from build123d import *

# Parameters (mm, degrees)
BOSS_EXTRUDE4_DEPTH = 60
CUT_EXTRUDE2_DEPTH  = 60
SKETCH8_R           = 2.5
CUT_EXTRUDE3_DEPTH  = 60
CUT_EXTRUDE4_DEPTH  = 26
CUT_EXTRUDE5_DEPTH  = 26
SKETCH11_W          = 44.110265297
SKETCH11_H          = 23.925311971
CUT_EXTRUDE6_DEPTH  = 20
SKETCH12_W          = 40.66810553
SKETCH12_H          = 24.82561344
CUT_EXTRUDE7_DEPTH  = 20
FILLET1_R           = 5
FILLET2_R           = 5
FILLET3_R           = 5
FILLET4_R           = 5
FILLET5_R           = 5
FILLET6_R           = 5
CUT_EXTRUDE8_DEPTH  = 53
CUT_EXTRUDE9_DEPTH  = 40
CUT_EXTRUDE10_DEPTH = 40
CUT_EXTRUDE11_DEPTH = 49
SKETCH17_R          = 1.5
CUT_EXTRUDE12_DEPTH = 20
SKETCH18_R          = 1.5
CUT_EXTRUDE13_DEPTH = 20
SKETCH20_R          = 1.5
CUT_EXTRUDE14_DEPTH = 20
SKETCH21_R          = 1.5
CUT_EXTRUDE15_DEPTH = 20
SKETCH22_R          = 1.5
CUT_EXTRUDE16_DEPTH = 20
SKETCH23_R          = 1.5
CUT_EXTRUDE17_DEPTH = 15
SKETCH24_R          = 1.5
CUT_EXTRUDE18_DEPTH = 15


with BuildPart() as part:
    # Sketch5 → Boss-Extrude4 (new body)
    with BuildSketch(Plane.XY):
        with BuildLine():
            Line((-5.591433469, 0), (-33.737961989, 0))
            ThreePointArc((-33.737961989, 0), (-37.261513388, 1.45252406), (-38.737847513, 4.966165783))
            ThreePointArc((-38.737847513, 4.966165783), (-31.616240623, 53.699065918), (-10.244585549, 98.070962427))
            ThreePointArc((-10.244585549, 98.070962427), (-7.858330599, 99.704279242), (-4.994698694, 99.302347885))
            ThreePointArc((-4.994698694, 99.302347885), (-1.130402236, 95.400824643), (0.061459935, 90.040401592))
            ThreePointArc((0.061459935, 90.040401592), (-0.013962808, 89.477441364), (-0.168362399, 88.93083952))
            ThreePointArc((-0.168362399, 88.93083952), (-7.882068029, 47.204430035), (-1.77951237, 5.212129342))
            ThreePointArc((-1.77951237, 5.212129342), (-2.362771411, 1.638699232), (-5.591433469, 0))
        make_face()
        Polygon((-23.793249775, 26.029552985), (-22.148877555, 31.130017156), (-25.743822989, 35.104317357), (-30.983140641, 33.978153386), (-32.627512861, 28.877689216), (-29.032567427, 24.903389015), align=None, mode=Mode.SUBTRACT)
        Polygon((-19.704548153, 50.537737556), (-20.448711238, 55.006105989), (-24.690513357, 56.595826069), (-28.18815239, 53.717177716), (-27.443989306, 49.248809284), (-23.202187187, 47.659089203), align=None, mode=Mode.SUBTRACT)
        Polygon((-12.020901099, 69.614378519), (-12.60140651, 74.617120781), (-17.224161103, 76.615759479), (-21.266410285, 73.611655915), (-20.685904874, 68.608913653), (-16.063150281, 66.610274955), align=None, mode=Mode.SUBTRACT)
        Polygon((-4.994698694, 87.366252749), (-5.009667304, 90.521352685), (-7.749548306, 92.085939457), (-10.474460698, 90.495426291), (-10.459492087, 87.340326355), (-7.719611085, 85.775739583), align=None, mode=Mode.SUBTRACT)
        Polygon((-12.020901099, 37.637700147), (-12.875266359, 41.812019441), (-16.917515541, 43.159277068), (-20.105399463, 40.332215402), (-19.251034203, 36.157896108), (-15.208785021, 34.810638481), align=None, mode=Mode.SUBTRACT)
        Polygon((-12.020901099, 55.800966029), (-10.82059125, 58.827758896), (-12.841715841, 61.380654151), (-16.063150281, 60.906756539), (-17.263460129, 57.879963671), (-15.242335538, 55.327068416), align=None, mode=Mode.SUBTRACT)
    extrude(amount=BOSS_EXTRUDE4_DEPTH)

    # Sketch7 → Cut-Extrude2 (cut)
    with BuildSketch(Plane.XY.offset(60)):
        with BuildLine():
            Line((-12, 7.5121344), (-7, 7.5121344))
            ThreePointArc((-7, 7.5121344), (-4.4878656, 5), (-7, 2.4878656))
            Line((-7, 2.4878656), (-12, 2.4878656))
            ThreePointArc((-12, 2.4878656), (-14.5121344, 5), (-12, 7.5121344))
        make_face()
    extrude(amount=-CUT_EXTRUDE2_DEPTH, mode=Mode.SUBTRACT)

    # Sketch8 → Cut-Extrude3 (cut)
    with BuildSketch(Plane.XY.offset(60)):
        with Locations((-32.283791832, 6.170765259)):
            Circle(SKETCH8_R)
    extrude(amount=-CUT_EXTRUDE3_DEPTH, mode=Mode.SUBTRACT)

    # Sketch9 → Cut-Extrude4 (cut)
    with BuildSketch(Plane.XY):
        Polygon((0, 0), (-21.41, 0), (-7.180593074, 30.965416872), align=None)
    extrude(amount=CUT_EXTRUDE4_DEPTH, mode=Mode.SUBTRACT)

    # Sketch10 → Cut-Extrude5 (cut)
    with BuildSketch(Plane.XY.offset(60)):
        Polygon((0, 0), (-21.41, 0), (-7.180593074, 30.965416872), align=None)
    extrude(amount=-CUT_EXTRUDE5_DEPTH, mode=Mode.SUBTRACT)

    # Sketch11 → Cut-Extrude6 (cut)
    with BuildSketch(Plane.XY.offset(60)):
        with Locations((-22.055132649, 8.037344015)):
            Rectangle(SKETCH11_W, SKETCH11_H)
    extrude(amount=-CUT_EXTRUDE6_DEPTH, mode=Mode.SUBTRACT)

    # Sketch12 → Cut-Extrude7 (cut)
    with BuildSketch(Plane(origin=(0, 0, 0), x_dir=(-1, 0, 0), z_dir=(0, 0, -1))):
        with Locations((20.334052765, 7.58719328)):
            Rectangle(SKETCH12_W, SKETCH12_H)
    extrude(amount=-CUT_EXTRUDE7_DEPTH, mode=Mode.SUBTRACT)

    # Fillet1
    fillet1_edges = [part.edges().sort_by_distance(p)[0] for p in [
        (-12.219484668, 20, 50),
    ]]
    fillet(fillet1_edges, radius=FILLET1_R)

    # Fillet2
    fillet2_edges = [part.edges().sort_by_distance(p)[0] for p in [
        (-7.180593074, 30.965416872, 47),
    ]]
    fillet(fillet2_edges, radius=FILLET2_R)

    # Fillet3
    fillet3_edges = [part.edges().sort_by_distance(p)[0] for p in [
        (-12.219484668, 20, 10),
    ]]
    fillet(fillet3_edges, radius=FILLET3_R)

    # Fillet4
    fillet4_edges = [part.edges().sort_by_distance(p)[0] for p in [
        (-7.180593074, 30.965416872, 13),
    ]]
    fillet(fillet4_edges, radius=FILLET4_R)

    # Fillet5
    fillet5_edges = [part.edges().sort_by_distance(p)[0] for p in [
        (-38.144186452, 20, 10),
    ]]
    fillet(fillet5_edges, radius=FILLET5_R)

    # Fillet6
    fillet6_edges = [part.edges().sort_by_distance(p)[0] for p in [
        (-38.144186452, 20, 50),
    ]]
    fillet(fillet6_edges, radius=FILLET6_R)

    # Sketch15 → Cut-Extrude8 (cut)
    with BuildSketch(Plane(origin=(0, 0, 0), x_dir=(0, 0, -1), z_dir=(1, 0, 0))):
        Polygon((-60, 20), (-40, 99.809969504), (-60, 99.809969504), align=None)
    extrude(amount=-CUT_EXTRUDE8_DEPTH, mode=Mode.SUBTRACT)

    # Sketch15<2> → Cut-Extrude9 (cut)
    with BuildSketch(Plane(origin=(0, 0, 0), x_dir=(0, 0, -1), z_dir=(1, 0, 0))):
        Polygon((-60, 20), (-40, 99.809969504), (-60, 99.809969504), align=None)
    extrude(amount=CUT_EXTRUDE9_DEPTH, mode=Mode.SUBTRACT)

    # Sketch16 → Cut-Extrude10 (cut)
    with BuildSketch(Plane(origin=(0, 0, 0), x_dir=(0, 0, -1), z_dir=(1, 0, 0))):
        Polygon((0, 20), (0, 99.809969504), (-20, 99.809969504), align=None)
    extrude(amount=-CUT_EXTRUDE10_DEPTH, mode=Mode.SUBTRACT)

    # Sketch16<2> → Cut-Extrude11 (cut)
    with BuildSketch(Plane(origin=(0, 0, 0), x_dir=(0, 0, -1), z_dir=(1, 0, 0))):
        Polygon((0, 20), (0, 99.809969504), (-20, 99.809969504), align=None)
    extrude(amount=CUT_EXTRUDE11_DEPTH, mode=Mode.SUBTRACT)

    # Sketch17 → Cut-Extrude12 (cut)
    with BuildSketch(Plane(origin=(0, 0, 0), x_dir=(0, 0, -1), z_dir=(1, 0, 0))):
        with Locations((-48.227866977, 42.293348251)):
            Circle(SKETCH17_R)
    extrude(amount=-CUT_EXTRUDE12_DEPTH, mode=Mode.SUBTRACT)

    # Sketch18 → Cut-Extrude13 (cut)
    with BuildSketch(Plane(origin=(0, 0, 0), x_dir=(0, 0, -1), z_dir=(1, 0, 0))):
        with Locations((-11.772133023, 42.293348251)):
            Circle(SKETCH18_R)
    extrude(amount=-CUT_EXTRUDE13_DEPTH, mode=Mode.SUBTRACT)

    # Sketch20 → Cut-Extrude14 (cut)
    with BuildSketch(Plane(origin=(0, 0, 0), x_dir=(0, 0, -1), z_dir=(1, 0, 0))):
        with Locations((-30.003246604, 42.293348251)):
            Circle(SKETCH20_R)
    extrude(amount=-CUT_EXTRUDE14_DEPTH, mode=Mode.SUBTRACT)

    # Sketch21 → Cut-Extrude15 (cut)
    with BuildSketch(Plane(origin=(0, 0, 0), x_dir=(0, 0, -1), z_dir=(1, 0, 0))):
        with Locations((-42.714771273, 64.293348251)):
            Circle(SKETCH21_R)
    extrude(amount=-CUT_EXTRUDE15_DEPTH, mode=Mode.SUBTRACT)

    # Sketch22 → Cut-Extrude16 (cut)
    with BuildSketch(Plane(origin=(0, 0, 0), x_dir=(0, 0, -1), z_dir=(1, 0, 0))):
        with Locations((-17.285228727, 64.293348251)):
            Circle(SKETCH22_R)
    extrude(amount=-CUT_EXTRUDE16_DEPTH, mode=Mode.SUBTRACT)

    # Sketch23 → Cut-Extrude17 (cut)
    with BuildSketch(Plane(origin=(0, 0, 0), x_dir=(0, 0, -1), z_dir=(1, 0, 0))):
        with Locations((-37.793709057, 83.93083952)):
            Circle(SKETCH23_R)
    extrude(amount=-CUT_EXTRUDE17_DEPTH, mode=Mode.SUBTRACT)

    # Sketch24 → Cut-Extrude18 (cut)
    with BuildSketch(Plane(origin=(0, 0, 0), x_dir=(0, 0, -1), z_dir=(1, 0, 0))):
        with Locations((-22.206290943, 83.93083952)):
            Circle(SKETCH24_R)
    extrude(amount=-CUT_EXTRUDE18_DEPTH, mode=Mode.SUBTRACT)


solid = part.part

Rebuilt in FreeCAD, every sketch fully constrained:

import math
import FreeCAD as App
import Part
import Sketcher
from FreeCAD import Vector
Q = App.Units.Quantity


def edges_at(feature, points):
    """Names of the edges that pass closest to the given points."""
    edges = feature.Shape.Edges
    near = lambda p: min(range(len(edges)), key=lambda i: edges[i].distToShape(Part.Vertex(*p))[0])
    return sorted({f"Edge{near(p) + 1}" for p in points})

doc = App.newDocument("Part")
body = doc.addObject("PartDesign::Body", "Body")

sketch1 = body.newObject("Sketcher::SketchObject", "Sketch")
sketch1.AttachmentSupport = (doc.getObject("XY_Plane"), [""])
sketch1.MapMode = "FlatFace"
sketch1.addGeometry(Part.LineSegment(Vector(-33.737962, 0, 0), Vector(-5.591433, 0, 0)), False)
sketch1.addGeometry(Part.ArcOfCircle(Part.Circle(Vector(-5.591433, 4, 0), Vector(0, 0, 1), 4), math.radians(-90), math.radians(17.639824)), False)
sketch1.addGeometry(Part.ArcOfCircle(Part.Circle(Vector(122.393977, 44.697293, 0), Vector(0, 0, 1), 130.300167), math.radians(160.155157), math.radians(197.639824)), False)
sketch1.addGeometry(Part.ArcOfCircle(Part.Circle(Vector(-3.930824, 90.288736, 0), Vector(0, 0, 1), 4), math.radians(-19.844843), math.radians(-3.559422)), False)
sketch1.addGeometry(Part.ArcOfCircle(Part.Circle(Vector(-9.823371, 90.655275, 0), Vector(0, 0, 1), 9.903936), math.radians(-3.559422), math.radians(60.820267)), False)
sketch1.addGeometry(Part.ArcOfCircle(Part.Circle(Vector(-6.944902, 95.80997, 0), Vector(0, 0, 1), 4), math.radians(60.820267), math.radians(145.580469)), False)
sketch1.addGeometry(Part.ArcOfCircle(Part.Circle(Vector(124.02476, 6.06758, 0), Vector(0, 0, 1), 162.766334), math.radians(145.580469), math.radians(180.387715)), False)
sketch1.addGeometry(Part.ArcOfCircle(Part.Circle(Vector(-33.737962, 5, 0), Vector(0, 0, 1), 5), math.radians(-179.612285), math.radians(-90)), False)
sketch1.addGeometry(Part.LineSegment(Vector(-12.020901, 37.6377, 0), Vector(-15.208785, 34.810638, 0)), False)
sketch1.addGeometry(Part.LineSegment(Vector(-15.208785, 34.810638, 0), Vector(-19.251034, 36.157896, 0)), False)
sketch1.addGeometry(Part.LineSegment(Vector(-19.251034, 36.157896, 0), Vector(-20.105399, 40.332215, 0)), False)
sketch1.addGeometry(Part.LineSegment(Vector(-20.105399, 40.332215, 0), Vector(-16.917516, 43.159277, 0)), False)
sketch1.addGeometry(Part.LineSegment(Vector(-16.917516, 43.159277, 0), Vector(-12.875266, 41.812019, 0)), False)
sketch1.addGeometry(Part.LineSegment(Vector(-12.875266, 41.812019, 0), Vector(-12.020901, 37.6377, 0)), False)
sketch1.addGeometry(Part.LineSegment(Vector(-12.020901, 55.800966, 0), Vector(-15.242336, 55.327068, 0)), False)
sketch1.addGeometry(Part.LineSegment(Vector(-15.242336, 55.327068, 0), Vector(-17.26346, 57.879964, 0)), False)
sketch1.addGeometry(Part.LineSegment(Vector(-17.26346, 57.879964, 0), Vector(-16.06315, 60.906757, 0)), False)
sketch1.addGeometry(Part.LineSegment(Vector(-16.06315, 60.906757, 0), Vector(-12.841716, 61.380654, 0)), False)
sketch1.addGeometry(Part.LineSegment(Vector(-12.841716, 61.380654, 0), Vector(-10.820591, 58.827759, 0)), False)
sketch1.addGeometry(Part.LineSegment(Vector(-10.820591, 58.827759, 0), Vector(-12.020901, 55.800966, 0)), False)
sketch1.addGeometry(Part.LineSegment(Vector(-23.79325, 26.029553, 0), Vector(-29.032567, 24.903389, 0)), False)
sketch1.addGeometry(Part.LineSegment(Vector(-29.032567, 24.903389, 0), Vector(-32.627513, 28.877689, 0)), False)
sketch1.addGeometry(Part.LineSegment(Vector(-32.627513, 28.877689, 0), Vector(-30.983141, 33.978153, 0)), False)
sketch1.addGeometry(Part.LineSegment(Vector(-30.983141, 33.978153, 0), Vector(-25.743823, 35.104317, 0)), False)
sketch1.addGeometry(Part.LineSegment(Vector(-25.743823, 35.104317, 0), Vector(-22.148878, 31.130017, 0)), False)
sketch1.addGeometry(Part.LineSegment(Vector(-22.148878, 31.130017, 0), Vector(-23.79325, 26.029553, 0)), False)
sketch1.addGeometry(Part.LineSegment(Vector(-19.704548, 50.537738, 0), Vector(-23.202187, 47.659089, 0)), False)
sketch1.addGeometry(Part.LineSegment(Vector(-23.202187, 47.659089, 0), Vector(-27.443989, 49.248809, 0)), False)
sketch1.addGeometry(Part.LineSegment(Vector(-27.443989, 49.248809, 0), Vector(-28.188152, 53.717178, 0)), False)
sketch1.addGeometry(Part.LineSegment(Vector(-28.188152, 53.717178, 0), Vector(-24.690513, 56.595826, 0)), False)
sketch1.addGeometry(Part.LineSegment(Vector(-24.690513, 56.595826, 0), Vector(-20.448711, 55.006106, 0)), False)
sketch1.addGeometry(Part.LineSegment(Vector(-20.448711, 55.006106, 0), Vector(-19.704548, 50.537738, 0)), False)
sketch1.addGeometry(Part.LineSegment(Vector(-12.020901, 69.614379, 0), Vector(-16.06315, 66.610275, 0)), False)
sketch1.addGeometry(Part.LineSegment(Vector(-16.06315, 66.610275, 0), Vector(-20.685905, 68.608914, 0)), False)
sketch1.addGeometry(Part.LineSegment(Vector(-20.685905, 68.608914, 0), Vector(-21.26641, 73.611656, 0)), False)
sketch1.addGeometry(Part.LineSegment(Vector(-21.26641, 73.611656, 0), Vector(-17.224161, 76.615759, 0)), False)
sketch1.addGeometry(Part.LineSegment(Vector(-17.224161, 76.615759, 0), Vector(-12.601407, 74.617121, 0)), False)
sketch1.addGeometry(Part.LineSegment(Vector(-12.601407, 74.617121, 0), Vector(-12.020901, 69.614379, 0)), False)
sketch1.addGeometry(Part.LineSegment(Vector(-4.994699, 87.366253, 0), Vector(-7.719611, 85.77574, 0)), False)
sketch1.addGeometry(Part.LineSegment(Vector(-7.719611, 85.77574, 0), Vector(-10.459492, 87.340326, 0)), False)
sketch1.addGeometry(Part.LineSegment(Vector(-10.459492, 87.340326, 0), Vector(-10.474461, 90.495426, 0)), False)
sketch1.addGeometry(Part.LineSegment(Vector(-10.474461, 90.495426, 0), Vector(-7.749548, 92.085939, 0)), False)
sketch1.addGeometry(Part.LineSegment(Vector(-7.749548, 92.085939, 0), Vector(-5.009667, 90.521353, 0)), False)
sketch1.addGeometry(Part.LineSegment(Vector(-5.009667, 90.521353, 0), Vector(-4.994699, 87.366253, 0)), False)
sketch1.addConstraint(Sketcher.Constraint("Tangent", 0, 2, 1, 1))
sketch1.addConstraint(Sketcher.Constraint("Tangent", 1, 2, 2, 2))
sketch1.addConstraint(Sketcher.Constraint("Tangent", 2, 1, 3, 1))
sketch1.addConstraint(Sketcher.Constraint("Tangent", 3, 2, 4, 1))
sketch1.addConstraint(Sketcher.Constraint("Tangent", 4, 2, 5, 1))
sketch1.addConstraint(Sketcher.Constraint("Tangent", 5, 2, 6, 1))
sketch1.addConstraint(Sketcher.Constraint("Tangent", 6, 2, 7, 1))
sketch1.addConstraint(Sketcher.Constraint("Tangent", 7, 2, 0, 1))
sketch1.addConstraint(Sketcher.Constraint("Coincident", 8, 2, 9, 1))
sketch1.addConstraint(Sketcher.Constraint("Coincident", 9, 2, 10, 1))
sketch1.addConstraint(Sketcher.Constraint("Coincident", 10, 2, 11, 1))
sketch1.addConstraint(Sketcher.Constraint("Coincident", 11, 2, 12, 1))
sketch1.addConstraint(Sketcher.Constraint("Coincident", 12, 2, 13, 1))
sketch1.addConstraint(Sketcher.Constraint("Coincident", 13, 2, 8, 1))
sketch1.addConstraint(Sketcher.Constraint("Coincident", 14, 2, 15, 1))
sketch1.addConstraint(Sketcher.Constraint("Coincident", 15, 2, 16, 1))
sketch1.addConstraint(Sketcher.Constraint("Coincident", 16, 2, 17, 1))
sketch1.addConstraint(Sketcher.Constraint("Coincident", 17, 2, 18, 1))
sketch1.addConstraint(Sketcher.Constraint("Coincident", 18, 2, 19, 1))
sketch1.addConstraint(Sketcher.Constraint("Coincident", 19, 2, 14, 1))
sketch1.addConstraint(Sketcher.Constraint("Coincident", 20, 2, 21, 1))
sketch1.addConstraint(Sketcher.Constraint("Coincident", 21, 2, 22, 1))
sketch1.addConstraint(Sketcher.Constraint("Coincident", 22, 2, 23, 1))
sketch1.addConstraint(Sketcher.Constraint("Coincident", 23, 2, 24, 1))
sketch1.addConstraint(Sketcher.Constraint("Coincident", 24, 2, 25, 1))
sketch1.addConstraint(Sketcher.Constraint("Coincident", 25, 2, 20, 1))
sketch1.addConstraint(Sketcher.Constraint("Coincident", 26, 2, 27, 1))
sketch1.addConstraint(Sketcher.Constraint("Coincident", 27, 2, 28, 1))
sketch1.addConstraint(Sketcher.Constraint("Coincident", 28, 2, 29, 1))
sketch1.addConstraint(Sketcher.Constraint("Coincident", 29, 2, 30, 1))
sketch1.addConstraint(Sketcher.Constraint("Coincident", 30, 2, 31, 1))
sketch1.addConstraint(Sketcher.Constraint("Coincident", 31, 2, 26, 1))
sketch1.addConstraint(Sketcher.Constraint("Coincident", 32, 2, 33, 1))
sketch1.addConstraint(Sketcher.Constraint("Coincident", 33, 2, 34, 1))
sketch1.addConstraint(Sketcher.Constraint("Coincident", 34, 2, 35, 1))
sketch1.addConstraint(Sketcher.Constraint("Coincident", 35, 2, 36, 1))
sketch1.addConstraint(Sketcher.Constraint("Coincident", 36, 2, 37, 1))
sketch1.addConstraint(Sketcher.Constraint("Coincident", 37, 2, 32, 1))
sketch1.addConstraint(Sketcher.Constraint("Coincident", 38, 2, 39, 1))
sketch1.addConstraint(Sketcher.Constraint("Coincident", 39, 2, 40, 1))
sketch1.addConstraint(Sketcher.Constraint("Coincident", 40, 2, 41, 1))
sketch1.addConstraint(Sketcher.Constraint("Coincident", 41, 2, 42, 1))
sketch1.addConstraint(Sketcher.Constraint("Coincident", 42, 2, 43, 1))
sketch1.addConstraint(Sketcher.Constraint("Coincident", 43, 2, 38, 1))
sketch1.addConstraint(Sketcher.Constraint("Horizontal", 0))
sketch1.addConstraint(Sketcher.Constraint("Equal", 1, 3))
sketch1.addConstraint(Sketcher.Constraint("Equal", 3, 5))
sketch1.addConstraint(Sketcher.Constraint("PointOnObject", 0, 2, -1))
sketch1.addConstraint(Sketcher.Constraint("Parallel", 8, 11))
sketch1.addConstraint(Sketcher.Constraint("Parallel", 9, 12))
sketch1.addConstraint(Sketcher.Constraint("Parallel", 10, 13))
sketch1.addConstraint(Sketcher.Constraint("Parallel", 14, 17))
sketch1.addConstraint(Sketcher.Constraint("Parallel", 15, 18))
sketch1.addConstraint(Sketcher.Constraint("Parallel", 16, 19))
sketch1.addConstraint(Sketcher.Constraint("Parallel", 20, 23))
sketch1.addConstraint(Sketcher.Constraint("Parallel", 21, 24))
sketch1.addConstraint(Sketcher.Constraint("Parallel", 22, 25))
sketch1.addConstraint(Sketcher.Constraint("Parallel", 26, 29))
sketch1.addConstraint(Sketcher.Constraint("Parallel", 27, 30))
sketch1.addConstraint(Sketcher.Constraint("Parallel", 28, 31))
sketch1.addConstraint(Sketcher.Constraint("Parallel", 32, 35))
sketch1.addConstraint(Sketcher.Constraint("Parallel", 33, 36))
sketch1.addConstraint(Sketcher.Constraint("Parallel", 34, 37))
sketch1.addConstraint(Sketcher.Constraint("Parallel", 38, 41))
sketch1.addConstraint(Sketcher.Constraint("Parallel", 39, 42))
sketch1.addConstraint(Sketcher.Constraint("Parallel", 40, 43))
sketch1.addConstraint(Sketcher.Constraint("Vertical", 13, 2, 19, 2))
sketch1.addConstraint(Sketcher.Constraint("Vertical", 16, 2, 32, 2))
sketch1.addConstraint(Sketcher.Constraint("Vertical", 19, 2, 37, 2))
sketch1.addConstraint(Sketcher.Constraint("Vertical", 4, 2, 43, 2))
sketch1.addConstraint(Sketcher.Constraint("Equal", 8, 9))
sketch1.addConstraint(Sketcher.Constraint("Equal", 9, 10))
sketch1.addConstraint(Sketcher.Constraint("Equal", 10, 11))
sketch1.addConstraint(Sketcher.Constraint("Equal", 14, 15))
sketch1.addConstraint(Sketcher.Constraint("Equal", 15, 16))
sketch1.addConstraint(Sketcher.Constraint("Equal", 16, 17))
sketch1.addConstraint(Sketcher.Constraint("Equal", 20, 21))
sketch1.addConstraint(Sketcher.Constraint("Equal", 21, 22))
sketch1.addConstraint(Sketcher.Constraint("Equal", 22, 23))
sketch1.addConstraint(Sketcher.Constraint("Equal", 26, 27))
sketch1.addConstraint(Sketcher.Constraint("Equal", 27, 28))
sketch1.addConstraint(Sketcher.Constraint("Equal", 28, 29))
sketch1.addConstraint(Sketcher.Constraint("Equal", 32, 33))
sketch1.addConstraint(Sketcher.Constraint("Equal", 33, 34))
sketch1.addConstraint(Sketcher.Constraint("Equal", 34, 35))
sketch1.addConstraint(Sketcher.Constraint("Equal", 38, 39))
sketch1.addConstraint(Sketcher.Constraint("Equal", 39, 40))
sketch1.addConstraint(Sketcher.Constraint("Equal", 40, 41))
sketch1.addConstraint(Sketcher.Constraint("Radius", 1, Q("4 mm")))
sketch1.addConstraint(Sketcher.Constraint("Radius", 7, Q("5 mm")))
sketch1.addConstraint(Sketcher.Constraint("Radius", 2, Q("130.300167 mm")))
sketch1.addConstraint(Sketcher.Constraint("Radius", 4, Q("9.903936 mm")))
sketch1.addConstraint(Sketcher.Constraint("Radius", 6, Q("162.766334 mm")))
sketch1.addConstraint(Sketcher.Constraint("DistanceY", 17, 2, 34, 2, Q("12.231002 mm")))
sketch1.addConstraint(Sketcher.Constraint("DistanceX", 0, 1, 0, 2, Q("28.146529 mm")))
sketch1.addConstraint(Sketcher.Constraint("DistanceY", -1, 1, 3, 2, Q("90.040402 mm")))
sketch1.addConstraint(Sketcher.Constraint("DistanceX", 4, 2, -1, 1, Q("4.994699 mm")))
sketch1.addConstraint(Sketcher.Constraint("DistanceX", 10, 2, -1, 1, Q("20.105399 mm")))
sketch1.addConstraint(Sketcher.Constraint("DistanceX", 13, 2, -1, 1, Q("12.020901 mm")))
sketch1.addConstraint(Sketcher.Constraint("DistanceY", -1, 1, 13, 2, Q("37.6377 mm")))
sketch1.addConstraint(Sketcher.Constraint("DistanceX", 3, 3, 2, 3, Q("126.324801 mm")))
sketch1.addConstraint(Sketcher.Constraint("DistanceX", 9, 2, 1, 3, Q("13.659601 mm")))
sketch1.addConstraint(Sketcher.Constraint("DistanceX", 9, 2, 14, 2, Q("4.008699 mm")))
sketch1.addConstraint(Sketcher.Constraint("DistanceX", 11, 2, 17, 2, Q("4.0758 mm")))
sketch1.addConstraint(Sketcher.Constraint("DistanceY", 20, 2, 21, 2, Q("3.9743 mm")))
sketch1.addConstraint(Sketcher.Constraint("DistanceY", 23, 2, 10, 2, Q("5.227898 mm")))
sketch1.addConstraint(Sketcher.Constraint("DistanceY", 25, 2, 22, 2, Q("7.9486 mm")))
sketch1.addConstraint(Sketcher.Constraint("DistanceY", 16, 2, 34, 2, Q("12.704899 mm")))
sketch1.addConstraint(Sketcher.Constraint("DistanceX", 33, 2, 36, 2, Q("8.084498 mm")))
sketch1.addConstraint(Sketcher.Constraint("DistanceY", 38, 2, 2, 1, Q("3.1551 mm")))
sketch1.addConstraint(Sketcher.Constraint("DistanceY", 39, 2, 40, 2, Q("3.1551 mm")))
sketch1.addConstraint(Sketcher.Constraint("Distance", 26, Q("4.529911 mm")))
sketch1.addConstraint(Sketcher.Constraint("Distance", 32, Q("5.03631 mm")))
sketch1.addConstraint(Sketcher.Constraint("DistanceX", 4, 3, -1, 1, Q("9.823371 mm")))
sketch1.addConstraint(Sketcher.Constraint("DistanceY", -1, 1, 5, 3, Q("95.80997 mm")))
sketch1.addConstraint(Sketcher.Constraint("DistanceY", -1, 1, 8, 2, Q("34.810638 mm")))
sketch1.addConstraint(Sketcher.Constraint("DistanceY", -1, 1, 12, 2, Q("41.812019 mm")))
sketch1.addConstraint(Sketcher.Constraint("DistanceY", -1, 1, 14, 2, Q("55.327068 mm")))
sketch1.addConstraint(Sketcher.Constraint("DistanceX", 15, 2, -1, 1, Q("17.26346 mm")))
sketch1.addConstraint(Sketcher.Constraint("DistanceY", -1, 1, 20, 2, Q("24.903389 mm")))
sketch1.addConstraint(Sketcher.Constraint("DistanceX", 22, 2, -1, 1, Q("30.983141 mm")))
sketch1.addConstraint(Sketcher.Constraint("DistanceX", 25, 2, -1, 1, Q("23.79325 mm")))
sketch1.addConstraint(Sketcher.Constraint("DistanceY", -1, 1, 26, 2, Q("47.659089 mm")))
sketch1.addConstraint(Sketcher.Constraint("DistanceX", 27, 2, -1, 1, Q("27.443989 mm")))
sketch1.addConstraint(Sketcher.Constraint("DistanceY", -1, 1, 27, 2, Q("49.248809 mm")))
sketch1.addConstraint(Sketcher.Constraint("DistanceX", 30, 2, -1, 1, Q("20.448711 mm")))
sketch1.addConstraint(Sketcher.Constraint("DistanceX", 31, 2, -1, 1, Q("19.704548 mm")))
sketch1.addConstraint(Sketcher.Constraint("DistanceX", 34, 2, -1, 1, Q("21.26641 mm")))
sketch1.addConstraint(Sketcher.Constraint("DistanceX", 38, 2, -1, 1, Q("7.719611 mm")))
sketch1.addConstraint(Sketcher.Constraint("DistanceX", 40, 2, -1, 1, Q("10.474461 mm")))
sketch1.addConstraint(Sketcher.Constraint("DistanceY", -1, 1, 41, 2, Q("92.085939 mm")))
pad1 = body.newObject("PartDesign::Pad", "Pad")
pad1.Profile = sketch1
pad1.Length = 60

sketch2 = body.newObject("Sketcher::SketchObject", "Sketch001")
sketch2.AttachmentSupport = (doc.getObject("XY_Plane"), [""])
sketch2.MapMode = "FlatFace"
sketch2.AttachmentOffset = App.Placement(Vector(0, 0, 60), App.Rotation())
sketch2.addGeometry(Part.LineSegment(Vector(-7, 7.512134, 0), Vector(-12, 7.512134, 0)), False)
sketch2.addGeometry(Part.ArcOfCircle(Part.Circle(Vector(-12, 5, 0), Vector(0, 0, 1), 2.512134), math.radians(90), math.radians(270)), False)
sketch2.addGeometry(Part.LineSegment(Vector(-12, 2.487866, 0), Vector(-7, 2.487866, 0)), False)
sketch2.addGeometry(Part.ArcOfCircle(Part.Circle(Vector(-7, 5, 0), Vector(0, 0, 1), 2.512134), math.radians(-90), math.radians(90)), False)
sketch2.addConstraint(Sketcher.Constraint("Tangent", 0, 2, 1, 1))
sketch2.addConstraint(Sketcher.Constraint("Tangent", 1, 2, 2, 1))
sketch2.addConstraint(Sketcher.Constraint("Tangent", 2, 2, 3, 1))
sketch2.addConstraint(Sketcher.Constraint("Tangent", 3, 2, 0, 1))
sketch2.addConstraint(Sketcher.Constraint("Horizontal", 0))
sketch2.addConstraint(Sketcher.Constraint("Horizontal", 2))
sketch2.addConstraint(Sketcher.Constraint("DistanceX", 0, 2, 0, 1, Q("5 mm")))
sketch2.addConstraint(Sketcher.Constraint("DistanceX", 1, 3, -1, 1, Q("12 mm")))
sketch2.addConstraint(Sketcher.Constraint("DistanceY", -1, 1, 1, 3, Q("5 mm")))
sketch2.addConstraint(Sketcher.Constraint("Radius", 1, Q("2.512134 mm")))
pocket1 = body.newObject("PartDesign::Pocket", "Pocket")
pocket1.Profile = sketch2
pocket1.Length = 60

sketch3 = body.newObject("Sketcher::SketchObject", "Sketch002")
sketch3.AttachmentSupport = (doc.getObject("XY_Plane"), [""])
sketch3.MapMode = "FlatFace"
sketch3.AttachmentOffset = App.Placement(Vector(0, 0, 60), App.Rotation())
sketch3.addGeometry(Part.Circle(Vector(-32.283792, 6.170765, 0), Vector(0, 0, 1), 2.5), False)
sketch3.addConstraint(Sketcher.Constraint("Diameter", 0, Q("5 mm")))
sketch3.addConstraint(Sketcher.Constraint("DistanceX", 0, 3, -1, 1, Q("32.283792 mm")))
sketch3.addConstraint(Sketcher.Constraint("DistanceY", -1, 1, 0, 3, Q("6.170765 mm")))
pocket2 = body.newObject("PartDesign::Pocket", "Pocket001")
pocket2.Profile = sketch3
pocket2.Length = 60

sketch4 = body.newObject("Sketcher::SketchObject", "Sketch003")
sketch4.AttachmentSupport = (doc.getObject("XY_Plane"), [""])
sketch4.MapMode = "FlatFace"
sketch4.addGeometry(Part.LineSegment(Vector(-21.41, 0, 0), Vector(0, 0, 0)), False)
sketch4.addGeometry(Part.LineSegment(Vector(0, 0, 0), Vector(-7.180593, 30.965417, 0)), False)
sketch4.addGeometry(Part.LineSegment(Vector(-7.180593, 30.965417, 0), Vector(-21.41, 0, 0)), False)
sketch4.addConstraint(Sketcher.Constraint("Coincident", 0, 2, 1, 1))
sketch4.addConstraint(Sketcher.Constraint("Coincident", 1, 2, 2, 1))
sketch4.addConstraint(Sketcher.Constraint("Coincident", 2, 2, 0, 1))
sketch4.addConstraint(Sketcher.Constraint("Horizontal", 0))
sketch4.addConstraint(Sketcher.Constraint("Coincident", 0, 2, -1, 1))
sketch4.addConstraint(Sketcher.Constraint("DistanceX", 0, 1, 0, 2, Q("21.41 mm")))
sketch4.addConstraint(Sketcher.Constraint("Angle", 2, Q("-114.68 deg")))
sketch4.addConstraint(Sketcher.Constraint("Distance", 1, Q("31.787072 mm")))
pocket3 = body.newObject("PartDesign::Pocket", "Pocket002")
pocket3.Profile = sketch4
pocket3.Length = 26
pocket3.Reversed = True

sketch5 = body.newObject("Sketcher::SketchObject", "Sketch004")
sketch5.AttachmentSupport = (doc.getObject("XY_Plane"), [""])
sketch5.MapMode = "FlatFace"
sketch5.AttachmentOffset = App.Placement(Vector(0, 0, 60), App.Rotation())
sketch5.addGeometry(Part.LineSegment(Vector(-21.41, 0, 0), Vector(0, 0, 0)), False)
sketch5.addGeometry(Part.LineSegment(Vector(0, 0, 0), Vector(-7.180593, 30.965417, 0)), False)
sketch5.addGeometry(Part.LineSegment(Vector(-7.180593, 30.965417, 0), Vector(-21.41, 0, 0)), False)
sketch5.addConstraint(Sketcher.Constraint("Coincident", 0, 2, 1, 1))
sketch5.addConstraint(Sketcher.Constraint("Coincident", 1, 2, 2, 1))
sketch5.addConstraint(Sketcher.Constraint("Coincident", 2, 2, 0, 1))
sketch5.addConstraint(Sketcher.Constraint("Horizontal", 0))
sketch5.addConstraint(Sketcher.Constraint("Coincident", 0, 2, -1, 1))
sketch5.addConstraint(Sketcher.Constraint("DistanceX", 0, 1, 0, 2, Q("21.41 mm")))
sketch5.addConstraint(Sketcher.Constraint("Angle", 2, Q("-114.68 deg")))
sketch5.addConstraint(Sketcher.Constraint("Distance", 1, Q("31.787072 mm")))
pocket4 = body.newObject("PartDesign::Pocket", "Pocket003")
pocket4.Profile = sketch5
pocket4.Length = 26

sketch6 = body.newObject("Sketcher::SketchObject", "Sketch005")
sketch6.AttachmentSupport = (doc.getObject("XY_Plane"), [""])
sketch6.MapMode = "FlatFace"
sketch6.AttachmentOffset = App.Placement(Vector(0, 0, 60), App.Rotation())
sketch6.addGeometry(Part.LineSegment(Vector(-44.110265, 20, 0), Vector(-44.110265, -3.925312, 0)), False)
sketch6.addGeometry(Part.LineSegment(Vector(-44.110265, -3.925312, 0), Vector(0, -3.925312, 0)), False)
sketch6.addGeometry(Part.LineSegment(Vector(0, -3.925312, 0), Vector(0, 20, 0)), False)
sketch6.addGeometry(Part.LineSegment(Vector(0, 20, 0), Vector(-44.110265, 20, 0)), False)
sketch6.addConstraint(Sketcher.Constraint("Coincident", 0, 2, 1, 1))
sketch6.addConstraint(Sketcher.Constraint("Coincident", 1, 2, 2, 1))
sketch6.addConstraint(Sketcher.Constraint("Coincident", 2, 2, 3, 1))
sketch6.addConstraint(Sketcher.Constraint("Coincident", 3, 2, 0, 1))
sketch6.addConstraint(Sketcher.Constraint("Vertical", 0))
sketch6.addConstraint(Sketcher.Constraint("Horizontal", 1))
sketch6.addConstraint(Sketcher.Constraint("Vertical", 2))
sketch6.addConstraint(Sketcher.Constraint("Horizontal", 3))
sketch6.addConstraint(Sketcher.Constraint("PointOnObject", 1, 2, -2))
sketch6.addConstraint(Sketcher.Constraint("DistanceY", -1, 1, 2, 2, Q("20 mm")))
sketch6.addConstraint(Sketcher.Constraint("DistanceY", 0, 2, 0, 1, Q("23.925312 mm")))
sketch6.addConstraint(Sketcher.Constraint("DistanceX", 1, 1, 1, 2, Q("44.110265 mm")))
pocket5 = body.newObject("PartDesign::Pocket", "Pocket004")
pocket5.Profile = sketch6
pocket5.Length = 20

sketch7 = body.newObject("Sketcher::SketchObject", "Sketch006")
sketch7.AttachmentSupport = (doc.getObject("XY_Plane"), [""])
sketch7.MapMode = "FlatFace"
sketch7.addGeometry(Part.LineSegment(Vector(0, 20, 0), Vector(0, -4.825613, 0)), False)
sketch7.addGeometry(Part.LineSegment(Vector(0, -4.825613, 0), Vector(-40.668106, -4.825613, 0)), False)
sketch7.addGeometry(Part.LineSegment(Vector(-40.668106, -4.825613, 0), Vector(-40.668106, 20, 0)), False)
sketch7.addGeometry(Part.LineSegment(Vector(-40.668106, 20, 0), Vector(0, 20, 0)), False)
sketch7.addConstraint(Sketcher.Constraint("Coincident", 0, 2, 1, 1))
sketch7.addConstraint(Sketcher.Constraint("Coincident", 1, 2, 2, 1))
sketch7.addConstraint(Sketcher.Constraint("Coincident", 2, 2, 3, 1))
sketch7.addConstraint(Sketcher.Constraint("Coincident", 3, 2, 0, 1))
sketch7.addConstraint(Sketcher.Constraint("Vertical", 0))
sketch7.addConstraint(Sketcher.Constraint("Horizontal", 1))
sketch7.addConstraint(Sketcher.Constraint("Vertical", 2))
sketch7.addConstraint(Sketcher.Constraint("Horizontal", 3))
sketch7.addConstraint(Sketcher.Constraint("PointOnObject", 0, 2, -2))
sketch7.addConstraint(Sketcher.Constraint("DistanceY", -1, 1, 2, 2, Q("20 mm")))
sketch7.addConstraint(Sketcher.Constraint("DistanceX", 1, 2, 1, 1, Q("40.668106 mm")))
sketch7.addConstraint(Sketcher.Constraint("DistanceY", 0, 2, 0, 1, Q("24.825613 mm")))
pocket6 = body.newObject("PartDesign::Pocket", "Pocket005")
pocket6.Profile = sketch7
pocket6.Length = 20
pocket6.Reversed = True
doc.recompute()

fillet = body.newObject("PartDesign::Fillet", "Fillet")
fillet.Base = (pocket6, edges_at(pocket6, [(-12.219, 20, 50)]))
fillet.Radius = 5
doc.recompute()

fillet2 = body.newObject("PartDesign::Fillet", "Fillet001")
fillet2.Base = (fillet, edges_at(fillet, [(-7.181, 30.965, 47)]))
fillet2.Radius = 5
doc.recompute()

fillet3 = body.newObject("PartDesign::Fillet", "Fillet002")
fillet3.Base = (fillet2, edges_at(fillet2, [(-12.219, 20, 10)]))
fillet3.Radius = 5
doc.recompute()

fillet4 = body.newObject("PartDesign::Fillet", "Fillet003")
fillet4.Base = (fillet3, edges_at(fillet3, [(-7.181, 30.965, 13)]))
fillet4.Radius = 5
doc.recompute()

fillet5 = body.newObject("PartDesign::Fillet", "Fillet004")
fillet5.Base = (fillet4, edges_at(fillet4, [(-38.144, 20, 10)]))
fillet5.Radius = 5
doc.recompute()

fillet6 = body.newObject("PartDesign::Fillet", "Fillet005")
fillet6.Base = (fillet5, edges_at(fillet5, [(-38.144, 20, 50)]))
fillet6.Radius = 5

sketch8 = body.newObject("Sketcher::SketchObject", "Sketch007")
sketch8.AttachmentSupport = (doc.getObject("YZ_Plane"), [""])
sketch8.MapMode = "FlatFace"
sketch8.addGeometry(Part.LineSegment(Vector(20, 60, 0), Vector(99.80997, 40, 0)), False)
sketch8.addGeometry(Part.LineSegment(Vector(99.80997, 40, 0), Vector(99.80997, 60, 0)), False)
sketch8.addGeometry(Part.LineSegment(Vector(99.80997, 60, 0), Vector(20, 60, 0)), False)
sketch8.addConstraint(Sketcher.Constraint("Coincident", 0, 2, 1, 1))
sketch8.addConstraint(Sketcher.Constraint("Coincident", 1, 2, 2, 1))
sketch8.addConstraint(Sketcher.Constraint("Coincident", 2, 2, 0, 1))
sketch8.addConstraint(Sketcher.Constraint("Vertical", 1))
sketch8.addConstraint(Sketcher.Constraint("Horizontal", 2))
sketch8.addConstraint(Sketcher.Constraint("DistanceY", 1, 1, 1, 2, Q("20 mm")))
sketch8.addConstraint(Sketcher.Constraint("DistanceY", -1, 1, 0, 2, Q("40 mm")))
sketch8.addConstraint(Sketcher.Constraint("DistanceX", -1, 1, 2, 2, Q("20 mm")))
sketch8.addConstraint(Sketcher.Constraint("DistanceX", 2, 2, 2, 1, Q("79.80997 mm")))
pocket7 = body.newObject("PartDesign::Pocket", "Pocket006")
pocket7.Profile = sketch8
pocket7.Length = 53

sketch9 = body.newObject("Sketcher::SketchObject", "Sketch008")
sketch9.AttachmentSupport = (doc.getObject("YZ_Plane"), [""])
sketch9.MapMode = "FlatFace"
sketch9.addGeometry(Part.LineSegment(Vector(20, 60, 0), Vector(99.80997, 40, 0)), False)
sketch9.addGeometry(Part.LineSegment(Vector(99.80997, 40, 0), Vector(99.80997, 60, 0)), False)
sketch9.addGeometry(Part.LineSegment(Vector(99.80997, 60, 0), Vector(20, 60, 0)), False)
sketch9.addConstraint(Sketcher.Constraint("Coincident", 0, 2, 1, 1))
sketch9.addConstraint(Sketcher.Constraint("Coincident", 1, 2, 2, 1))
sketch9.addConstraint(Sketcher.Constraint("Coincident", 2, 2, 0, 1))
sketch9.addConstraint(Sketcher.Constraint("Vertical", 1))
sketch9.addConstraint(Sketcher.Constraint("Horizontal", 2))
sketch9.addConstraint(Sketcher.Constraint("DistanceY", 1, 1, 1, 2, Q("20 mm")))
sketch9.addConstraint(Sketcher.Constraint("DistanceY", -1, 1, 0, 2, Q("40 mm")))
sketch9.addConstraint(Sketcher.Constraint("DistanceX", -1, 1, 2, 2, Q("20 mm")))
sketch9.addConstraint(Sketcher.Constraint("DistanceX", 2, 2, 2, 1, Q("79.80997 mm")))
pocket8 = body.newObject("PartDesign::Pocket", "Pocket007")
pocket8.Profile = sketch9
pocket8.Length = 40
pocket8.Reversed = True

sketch10 = body.newObject("Sketcher::SketchObject", "Sketch009")
sketch10.AttachmentSupport = (doc.getObject("YZ_Plane"), [""])
sketch10.MapMode = "FlatFace"
sketch10.addGeometry(Part.LineSegment(Vector(20, 0, 0), Vector(99.80997, 0, 0)), False)
sketch10.addGeometry(Part.LineSegment(Vector(99.80997, 0, 0), Vector(99.80997, 20, 0)), False)
sketch10.addGeometry(Part.LineSegment(Vector(99.80997, 20, 0), Vector(20, 0, 0)), False)
sketch10.addConstraint(Sketcher.Constraint("Coincident", 0, 2, 1, 1))
sketch10.addConstraint(Sketcher.Constraint("Coincident", 1, 2, 2, 1))
sketch10.addConstraint(Sketcher.Constraint("Coincident", 2, 2, 0, 1))
sketch10.addConstraint(Sketcher.Constraint("Horizontal", 0))
sketch10.addConstraint(Sketcher.Constraint("Vertical", 1))
sketch10.addConstraint(Sketcher.Constraint("PointOnObject", 0, 2, -1))
sketch10.addConstraint(Sketcher.Constraint("DistanceY", 1, 1, 1, 2, Q("20 mm")))
sketch10.addConstraint(Sketcher.Constraint("DistanceX", -1, 1, 2, 2, Q("20 mm")))
sketch10.addConstraint(Sketcher.Constraint("DistanceX", 0, 1, 0, 2, Q("79.80997 mm")))
pocket9 = body.newObject("PartDesign::Pocket", "Pocket008")
pocket9.Profile = sketch10
pocket9.Length = 40

sketch11 = body.newObject("Sketcher::SketchObject", "Sketch010")
sketch11.AttachmentSupport = (doc.getObject("YZ_Plane"), [""])
sketch11.MapMode = "FlatFace"
sketch11.addGeometry(Part.LineSegment(Vector(20, 0, 0), Vector(99.80997, 0, 0)), False)
sketch11.addGeometry(Part.LineSegment(Vector(99.80997, 0, 0), Vector(99.80997, 20, 0)), False)
sketch11.addGeometry(Part.LineSegment(Vector(99.80997, 20, 0), Vector(20, 0, 0)), False)
sketch11.addConstraint(Sketcher.Constraint("Coincident", 0, 2, 1, 1))
sketch11.addConstraint(Sketcher.Constraint("Coincident", 1, 2, 2, 1))
sketch11.addConstraint(Sketcher.Constraint("Coincident", 2, 2, 0, 1))
sketch11.addConstraint(Sketcher.Constraint("Horizontal", 0))
sketch11.addConstraint(Sketcher.Constraint("Vertical", 1))
sketch11.addConstraint(Sketcher.Constraint("PointOnObject", 0, 2, -1))
sketch11.addConstraint(Sketcher.Constraint("DistanceY", 1, 1, 1, 2, Q("20 mm")))
sketch11.addConstraint(Sketcher.Constraint("DistanceX", -1, 1, 2, 2, Q("20 mm")))
sketch11.addConstraint(Sketcher.Constraint("DistanceX", 0, 1, 0, 2, Q("79.80997 mm")))
pocket10 = body.newObject("PartDesign::Pocket", "Pocket009")
pocket10.Profile = sketch11
pocket10.Length = 49
pocket10.Reversed = True

sketch12 = body.newObject("Sketcher::SketchObject", "Sketch011")
sketch12.AttachmentSupport = (doc.getObject("YZ_Plane"), [""])
sketch12.MapMode = "FlatFace"
sketch12.addGeometry(Part.Circle(Vector(42.293348, 48.227867, 0), Vector(0, 0, 1), 1.5), False)
sketch12.addConstraint(Sketcher.Constraint("Diameter", 0, Q("3 mm")))
sketch12.addConstraint(Sketcher.Constraint("DistanceX", -1, 1, 0, 3, Q("42.293348 mm")))
sketch12.addConstraint(Sketcher.Constraint("DistanceY", -1, 1, 0, 3, Q("48.227867 mm")))
pocket11 = body.newObject("PartDesign::Pocket", "Pocket010")
pocket11.Profile = sketch12
pocket11.Length = 20

sketch13 = body.newObject("Sketcher::SketchObject", "Sketch012")
sketch13.AttachmentSupport = (doc.getObject("YZ_Plane"), [""])
sketch13.MapMode = "FlatFace"
sketch13.addGeometry(Part.Circle(Vector(42.293348, 11.772133, 0), Vector(0, 0, 1), 1.5), False)
sketch13.addConstraint(Sketcher.Constraint("Diameter", 0, Q("3 mm")))
sketch13.addConstraint(Sketcher.Constraint("DistanceX", -1, 1, 0, 3, Q("42.293348 mm")))
sketch13.addConstraint(Sketcher.Constraint("DistanceY", -1, 1, 0, 3, Q("11.772133 mm")))
pocket12 = body.newObject("PartDesign::Pocket", "Pocket011")
pocket12.Profile = sketch13
pocket12.Length = 20

sketch14 = body.newObject("Sketcher::SketchObject", "Sketch013")
sketch14.AttachmentSupport = (doc.getObject("YZ_Plane"), [""])
sketch14.MapMode = "FlatFace"
sketch14.addGeometry(Part.Circle(Vector(42.293348, 30.003247, 0), Vector(0, 0, 1), 1.5), False)
sketch14.addConstraint(Sketcher.Constraint("Diameter", 0, Q("3 mm")))
sketch14.addConstraint(Sketcher.Constraint("DistanceX", -1, 1, 0, 3, Q("42.293348 mm")))
sketch14.addConstraint(Sketcher.Constraint("DistanceY", -1, 1, 0, 3, Q("30.003247 mm")))
pocket13 = body.newObject("PartDesign::Pocket", "Pocket012")
pocket13.Profile = sketch14
pocket13.Length = 20

sketch15 = body.newObject("Sketcher::SketchObject", "Sketch014")
sketch15.AttachmentSupport = (doc.getObject("YZ_Plane"), [""])
sketch15.MapMode = "FlatFace"
sketch15.addGeometry(Part.Circle(Vector(64.293348, 42.714771, 0), Vector(0, 0, 1), 1.5), False)
sketch15.addConstraint(Sketcher.Constraint("Diameter", 0, Q("3 mm")))
sketch15.addConstraint(Sketcher.Constraint("DistanceX", -1, 1, 0, 3, Q("64.293348 mm")))
sketch15.addConstraint(Sketcher.Constraint("DistanceY", -1, 1, 0, 3, Q("42.714771 mm")))
pocket14 = body.newObject("PartDesign::Pocket", "Pocket013")
pocket14.Profile = sketch15
pocket14.Length = 20

sketch16 = body.newObject("Sketcher::SketchObject", "Sketch015")
sketch16.AttachmentSupport = (doc.getObject("YZ_Plane"), [""])
sketch16.MapMode = "FlatFace"
sketch16.addGeometry(Part.Circle(Vector(64.293348, 17.285229, 0), Vector(0, 0, 1), 1.5), False)
sketch16.addConstraint(Sketcher.Constraint("Diameter", 0, Q("3 mm")))
sketch16.addConstraint(Sketcher.Constraint("DistanceX", -1, 1, 0, 3, Q("64.293348 mm")))
sketch16.addConstraint(Sketcher.Constraint("DistanceY", -1, 1, 0, 3, Q("17.285229 mm")))
pocket15 = body.newObject("PartDesign::Pocket", "Pocket014")
pocket15.Profile = sketch16
pocket15.Length = 20

sketch17 = body.newObject("Sketcher::SketchObject", "Sketch016")
sketch17.AttachmentSupport = (doc.getObject("YZ_Plane"), [""])
sketch17.MapMode = "FlatFace"
sketch17.addGeometry(Part.Circle(Vector(83.93084, 37.793709, 0), Vector(0, 0, 1), 1.5), False)
sketch17.addConstraint(Sketcher.Constraint("Diameter", 0, Q("3 mm")))
sketch17.addConstraint(Sketcher.Constraint("DistanceX", -1, 1, 0, 3, Q("83.93084 mm")))
sketch17.addConstraint(Sketcher.Constraint("DistanceY", -1, 1, 0, 3, Q("37.793709 mm")))
pocket16 = body.newObject("PartDesign::Pocket", "Pocket015")
pocket16.Profile = sketch17
pocket16.Length = 15

sketch18 = body.newObject("Sketcher::SketchObject", "Sketch017")
sketch18.AttachmentSupport = (doc.getObject("YZ_Plane"), [""])
sketch18.MapMode = "FlatFace"
sketch18.addGeometry(Part.Circle(Vector(83.93084, 22.206291, 0), Vector(0, 0, 1), 1.5), False)
sketch18.addConstraint(Sketcher.Constraint("Diameter", 0, Q("3 mm")))
sketch18.addConstraint(Sketcher.Constraint("DistanceX", -1, 1, 0, 3, Q("83.93084 mm")))
sketch18.addConstraint(Sketcher.Constraint("DistanceY", -1, 1, 0, 3, Q("22.206291 mm")))
pocket17 = body.newObject("PartDesign::Pocket", "Pocket016")
pocket17.Profile = sketch18
pocket17.Length = 15

doc.recompute()
